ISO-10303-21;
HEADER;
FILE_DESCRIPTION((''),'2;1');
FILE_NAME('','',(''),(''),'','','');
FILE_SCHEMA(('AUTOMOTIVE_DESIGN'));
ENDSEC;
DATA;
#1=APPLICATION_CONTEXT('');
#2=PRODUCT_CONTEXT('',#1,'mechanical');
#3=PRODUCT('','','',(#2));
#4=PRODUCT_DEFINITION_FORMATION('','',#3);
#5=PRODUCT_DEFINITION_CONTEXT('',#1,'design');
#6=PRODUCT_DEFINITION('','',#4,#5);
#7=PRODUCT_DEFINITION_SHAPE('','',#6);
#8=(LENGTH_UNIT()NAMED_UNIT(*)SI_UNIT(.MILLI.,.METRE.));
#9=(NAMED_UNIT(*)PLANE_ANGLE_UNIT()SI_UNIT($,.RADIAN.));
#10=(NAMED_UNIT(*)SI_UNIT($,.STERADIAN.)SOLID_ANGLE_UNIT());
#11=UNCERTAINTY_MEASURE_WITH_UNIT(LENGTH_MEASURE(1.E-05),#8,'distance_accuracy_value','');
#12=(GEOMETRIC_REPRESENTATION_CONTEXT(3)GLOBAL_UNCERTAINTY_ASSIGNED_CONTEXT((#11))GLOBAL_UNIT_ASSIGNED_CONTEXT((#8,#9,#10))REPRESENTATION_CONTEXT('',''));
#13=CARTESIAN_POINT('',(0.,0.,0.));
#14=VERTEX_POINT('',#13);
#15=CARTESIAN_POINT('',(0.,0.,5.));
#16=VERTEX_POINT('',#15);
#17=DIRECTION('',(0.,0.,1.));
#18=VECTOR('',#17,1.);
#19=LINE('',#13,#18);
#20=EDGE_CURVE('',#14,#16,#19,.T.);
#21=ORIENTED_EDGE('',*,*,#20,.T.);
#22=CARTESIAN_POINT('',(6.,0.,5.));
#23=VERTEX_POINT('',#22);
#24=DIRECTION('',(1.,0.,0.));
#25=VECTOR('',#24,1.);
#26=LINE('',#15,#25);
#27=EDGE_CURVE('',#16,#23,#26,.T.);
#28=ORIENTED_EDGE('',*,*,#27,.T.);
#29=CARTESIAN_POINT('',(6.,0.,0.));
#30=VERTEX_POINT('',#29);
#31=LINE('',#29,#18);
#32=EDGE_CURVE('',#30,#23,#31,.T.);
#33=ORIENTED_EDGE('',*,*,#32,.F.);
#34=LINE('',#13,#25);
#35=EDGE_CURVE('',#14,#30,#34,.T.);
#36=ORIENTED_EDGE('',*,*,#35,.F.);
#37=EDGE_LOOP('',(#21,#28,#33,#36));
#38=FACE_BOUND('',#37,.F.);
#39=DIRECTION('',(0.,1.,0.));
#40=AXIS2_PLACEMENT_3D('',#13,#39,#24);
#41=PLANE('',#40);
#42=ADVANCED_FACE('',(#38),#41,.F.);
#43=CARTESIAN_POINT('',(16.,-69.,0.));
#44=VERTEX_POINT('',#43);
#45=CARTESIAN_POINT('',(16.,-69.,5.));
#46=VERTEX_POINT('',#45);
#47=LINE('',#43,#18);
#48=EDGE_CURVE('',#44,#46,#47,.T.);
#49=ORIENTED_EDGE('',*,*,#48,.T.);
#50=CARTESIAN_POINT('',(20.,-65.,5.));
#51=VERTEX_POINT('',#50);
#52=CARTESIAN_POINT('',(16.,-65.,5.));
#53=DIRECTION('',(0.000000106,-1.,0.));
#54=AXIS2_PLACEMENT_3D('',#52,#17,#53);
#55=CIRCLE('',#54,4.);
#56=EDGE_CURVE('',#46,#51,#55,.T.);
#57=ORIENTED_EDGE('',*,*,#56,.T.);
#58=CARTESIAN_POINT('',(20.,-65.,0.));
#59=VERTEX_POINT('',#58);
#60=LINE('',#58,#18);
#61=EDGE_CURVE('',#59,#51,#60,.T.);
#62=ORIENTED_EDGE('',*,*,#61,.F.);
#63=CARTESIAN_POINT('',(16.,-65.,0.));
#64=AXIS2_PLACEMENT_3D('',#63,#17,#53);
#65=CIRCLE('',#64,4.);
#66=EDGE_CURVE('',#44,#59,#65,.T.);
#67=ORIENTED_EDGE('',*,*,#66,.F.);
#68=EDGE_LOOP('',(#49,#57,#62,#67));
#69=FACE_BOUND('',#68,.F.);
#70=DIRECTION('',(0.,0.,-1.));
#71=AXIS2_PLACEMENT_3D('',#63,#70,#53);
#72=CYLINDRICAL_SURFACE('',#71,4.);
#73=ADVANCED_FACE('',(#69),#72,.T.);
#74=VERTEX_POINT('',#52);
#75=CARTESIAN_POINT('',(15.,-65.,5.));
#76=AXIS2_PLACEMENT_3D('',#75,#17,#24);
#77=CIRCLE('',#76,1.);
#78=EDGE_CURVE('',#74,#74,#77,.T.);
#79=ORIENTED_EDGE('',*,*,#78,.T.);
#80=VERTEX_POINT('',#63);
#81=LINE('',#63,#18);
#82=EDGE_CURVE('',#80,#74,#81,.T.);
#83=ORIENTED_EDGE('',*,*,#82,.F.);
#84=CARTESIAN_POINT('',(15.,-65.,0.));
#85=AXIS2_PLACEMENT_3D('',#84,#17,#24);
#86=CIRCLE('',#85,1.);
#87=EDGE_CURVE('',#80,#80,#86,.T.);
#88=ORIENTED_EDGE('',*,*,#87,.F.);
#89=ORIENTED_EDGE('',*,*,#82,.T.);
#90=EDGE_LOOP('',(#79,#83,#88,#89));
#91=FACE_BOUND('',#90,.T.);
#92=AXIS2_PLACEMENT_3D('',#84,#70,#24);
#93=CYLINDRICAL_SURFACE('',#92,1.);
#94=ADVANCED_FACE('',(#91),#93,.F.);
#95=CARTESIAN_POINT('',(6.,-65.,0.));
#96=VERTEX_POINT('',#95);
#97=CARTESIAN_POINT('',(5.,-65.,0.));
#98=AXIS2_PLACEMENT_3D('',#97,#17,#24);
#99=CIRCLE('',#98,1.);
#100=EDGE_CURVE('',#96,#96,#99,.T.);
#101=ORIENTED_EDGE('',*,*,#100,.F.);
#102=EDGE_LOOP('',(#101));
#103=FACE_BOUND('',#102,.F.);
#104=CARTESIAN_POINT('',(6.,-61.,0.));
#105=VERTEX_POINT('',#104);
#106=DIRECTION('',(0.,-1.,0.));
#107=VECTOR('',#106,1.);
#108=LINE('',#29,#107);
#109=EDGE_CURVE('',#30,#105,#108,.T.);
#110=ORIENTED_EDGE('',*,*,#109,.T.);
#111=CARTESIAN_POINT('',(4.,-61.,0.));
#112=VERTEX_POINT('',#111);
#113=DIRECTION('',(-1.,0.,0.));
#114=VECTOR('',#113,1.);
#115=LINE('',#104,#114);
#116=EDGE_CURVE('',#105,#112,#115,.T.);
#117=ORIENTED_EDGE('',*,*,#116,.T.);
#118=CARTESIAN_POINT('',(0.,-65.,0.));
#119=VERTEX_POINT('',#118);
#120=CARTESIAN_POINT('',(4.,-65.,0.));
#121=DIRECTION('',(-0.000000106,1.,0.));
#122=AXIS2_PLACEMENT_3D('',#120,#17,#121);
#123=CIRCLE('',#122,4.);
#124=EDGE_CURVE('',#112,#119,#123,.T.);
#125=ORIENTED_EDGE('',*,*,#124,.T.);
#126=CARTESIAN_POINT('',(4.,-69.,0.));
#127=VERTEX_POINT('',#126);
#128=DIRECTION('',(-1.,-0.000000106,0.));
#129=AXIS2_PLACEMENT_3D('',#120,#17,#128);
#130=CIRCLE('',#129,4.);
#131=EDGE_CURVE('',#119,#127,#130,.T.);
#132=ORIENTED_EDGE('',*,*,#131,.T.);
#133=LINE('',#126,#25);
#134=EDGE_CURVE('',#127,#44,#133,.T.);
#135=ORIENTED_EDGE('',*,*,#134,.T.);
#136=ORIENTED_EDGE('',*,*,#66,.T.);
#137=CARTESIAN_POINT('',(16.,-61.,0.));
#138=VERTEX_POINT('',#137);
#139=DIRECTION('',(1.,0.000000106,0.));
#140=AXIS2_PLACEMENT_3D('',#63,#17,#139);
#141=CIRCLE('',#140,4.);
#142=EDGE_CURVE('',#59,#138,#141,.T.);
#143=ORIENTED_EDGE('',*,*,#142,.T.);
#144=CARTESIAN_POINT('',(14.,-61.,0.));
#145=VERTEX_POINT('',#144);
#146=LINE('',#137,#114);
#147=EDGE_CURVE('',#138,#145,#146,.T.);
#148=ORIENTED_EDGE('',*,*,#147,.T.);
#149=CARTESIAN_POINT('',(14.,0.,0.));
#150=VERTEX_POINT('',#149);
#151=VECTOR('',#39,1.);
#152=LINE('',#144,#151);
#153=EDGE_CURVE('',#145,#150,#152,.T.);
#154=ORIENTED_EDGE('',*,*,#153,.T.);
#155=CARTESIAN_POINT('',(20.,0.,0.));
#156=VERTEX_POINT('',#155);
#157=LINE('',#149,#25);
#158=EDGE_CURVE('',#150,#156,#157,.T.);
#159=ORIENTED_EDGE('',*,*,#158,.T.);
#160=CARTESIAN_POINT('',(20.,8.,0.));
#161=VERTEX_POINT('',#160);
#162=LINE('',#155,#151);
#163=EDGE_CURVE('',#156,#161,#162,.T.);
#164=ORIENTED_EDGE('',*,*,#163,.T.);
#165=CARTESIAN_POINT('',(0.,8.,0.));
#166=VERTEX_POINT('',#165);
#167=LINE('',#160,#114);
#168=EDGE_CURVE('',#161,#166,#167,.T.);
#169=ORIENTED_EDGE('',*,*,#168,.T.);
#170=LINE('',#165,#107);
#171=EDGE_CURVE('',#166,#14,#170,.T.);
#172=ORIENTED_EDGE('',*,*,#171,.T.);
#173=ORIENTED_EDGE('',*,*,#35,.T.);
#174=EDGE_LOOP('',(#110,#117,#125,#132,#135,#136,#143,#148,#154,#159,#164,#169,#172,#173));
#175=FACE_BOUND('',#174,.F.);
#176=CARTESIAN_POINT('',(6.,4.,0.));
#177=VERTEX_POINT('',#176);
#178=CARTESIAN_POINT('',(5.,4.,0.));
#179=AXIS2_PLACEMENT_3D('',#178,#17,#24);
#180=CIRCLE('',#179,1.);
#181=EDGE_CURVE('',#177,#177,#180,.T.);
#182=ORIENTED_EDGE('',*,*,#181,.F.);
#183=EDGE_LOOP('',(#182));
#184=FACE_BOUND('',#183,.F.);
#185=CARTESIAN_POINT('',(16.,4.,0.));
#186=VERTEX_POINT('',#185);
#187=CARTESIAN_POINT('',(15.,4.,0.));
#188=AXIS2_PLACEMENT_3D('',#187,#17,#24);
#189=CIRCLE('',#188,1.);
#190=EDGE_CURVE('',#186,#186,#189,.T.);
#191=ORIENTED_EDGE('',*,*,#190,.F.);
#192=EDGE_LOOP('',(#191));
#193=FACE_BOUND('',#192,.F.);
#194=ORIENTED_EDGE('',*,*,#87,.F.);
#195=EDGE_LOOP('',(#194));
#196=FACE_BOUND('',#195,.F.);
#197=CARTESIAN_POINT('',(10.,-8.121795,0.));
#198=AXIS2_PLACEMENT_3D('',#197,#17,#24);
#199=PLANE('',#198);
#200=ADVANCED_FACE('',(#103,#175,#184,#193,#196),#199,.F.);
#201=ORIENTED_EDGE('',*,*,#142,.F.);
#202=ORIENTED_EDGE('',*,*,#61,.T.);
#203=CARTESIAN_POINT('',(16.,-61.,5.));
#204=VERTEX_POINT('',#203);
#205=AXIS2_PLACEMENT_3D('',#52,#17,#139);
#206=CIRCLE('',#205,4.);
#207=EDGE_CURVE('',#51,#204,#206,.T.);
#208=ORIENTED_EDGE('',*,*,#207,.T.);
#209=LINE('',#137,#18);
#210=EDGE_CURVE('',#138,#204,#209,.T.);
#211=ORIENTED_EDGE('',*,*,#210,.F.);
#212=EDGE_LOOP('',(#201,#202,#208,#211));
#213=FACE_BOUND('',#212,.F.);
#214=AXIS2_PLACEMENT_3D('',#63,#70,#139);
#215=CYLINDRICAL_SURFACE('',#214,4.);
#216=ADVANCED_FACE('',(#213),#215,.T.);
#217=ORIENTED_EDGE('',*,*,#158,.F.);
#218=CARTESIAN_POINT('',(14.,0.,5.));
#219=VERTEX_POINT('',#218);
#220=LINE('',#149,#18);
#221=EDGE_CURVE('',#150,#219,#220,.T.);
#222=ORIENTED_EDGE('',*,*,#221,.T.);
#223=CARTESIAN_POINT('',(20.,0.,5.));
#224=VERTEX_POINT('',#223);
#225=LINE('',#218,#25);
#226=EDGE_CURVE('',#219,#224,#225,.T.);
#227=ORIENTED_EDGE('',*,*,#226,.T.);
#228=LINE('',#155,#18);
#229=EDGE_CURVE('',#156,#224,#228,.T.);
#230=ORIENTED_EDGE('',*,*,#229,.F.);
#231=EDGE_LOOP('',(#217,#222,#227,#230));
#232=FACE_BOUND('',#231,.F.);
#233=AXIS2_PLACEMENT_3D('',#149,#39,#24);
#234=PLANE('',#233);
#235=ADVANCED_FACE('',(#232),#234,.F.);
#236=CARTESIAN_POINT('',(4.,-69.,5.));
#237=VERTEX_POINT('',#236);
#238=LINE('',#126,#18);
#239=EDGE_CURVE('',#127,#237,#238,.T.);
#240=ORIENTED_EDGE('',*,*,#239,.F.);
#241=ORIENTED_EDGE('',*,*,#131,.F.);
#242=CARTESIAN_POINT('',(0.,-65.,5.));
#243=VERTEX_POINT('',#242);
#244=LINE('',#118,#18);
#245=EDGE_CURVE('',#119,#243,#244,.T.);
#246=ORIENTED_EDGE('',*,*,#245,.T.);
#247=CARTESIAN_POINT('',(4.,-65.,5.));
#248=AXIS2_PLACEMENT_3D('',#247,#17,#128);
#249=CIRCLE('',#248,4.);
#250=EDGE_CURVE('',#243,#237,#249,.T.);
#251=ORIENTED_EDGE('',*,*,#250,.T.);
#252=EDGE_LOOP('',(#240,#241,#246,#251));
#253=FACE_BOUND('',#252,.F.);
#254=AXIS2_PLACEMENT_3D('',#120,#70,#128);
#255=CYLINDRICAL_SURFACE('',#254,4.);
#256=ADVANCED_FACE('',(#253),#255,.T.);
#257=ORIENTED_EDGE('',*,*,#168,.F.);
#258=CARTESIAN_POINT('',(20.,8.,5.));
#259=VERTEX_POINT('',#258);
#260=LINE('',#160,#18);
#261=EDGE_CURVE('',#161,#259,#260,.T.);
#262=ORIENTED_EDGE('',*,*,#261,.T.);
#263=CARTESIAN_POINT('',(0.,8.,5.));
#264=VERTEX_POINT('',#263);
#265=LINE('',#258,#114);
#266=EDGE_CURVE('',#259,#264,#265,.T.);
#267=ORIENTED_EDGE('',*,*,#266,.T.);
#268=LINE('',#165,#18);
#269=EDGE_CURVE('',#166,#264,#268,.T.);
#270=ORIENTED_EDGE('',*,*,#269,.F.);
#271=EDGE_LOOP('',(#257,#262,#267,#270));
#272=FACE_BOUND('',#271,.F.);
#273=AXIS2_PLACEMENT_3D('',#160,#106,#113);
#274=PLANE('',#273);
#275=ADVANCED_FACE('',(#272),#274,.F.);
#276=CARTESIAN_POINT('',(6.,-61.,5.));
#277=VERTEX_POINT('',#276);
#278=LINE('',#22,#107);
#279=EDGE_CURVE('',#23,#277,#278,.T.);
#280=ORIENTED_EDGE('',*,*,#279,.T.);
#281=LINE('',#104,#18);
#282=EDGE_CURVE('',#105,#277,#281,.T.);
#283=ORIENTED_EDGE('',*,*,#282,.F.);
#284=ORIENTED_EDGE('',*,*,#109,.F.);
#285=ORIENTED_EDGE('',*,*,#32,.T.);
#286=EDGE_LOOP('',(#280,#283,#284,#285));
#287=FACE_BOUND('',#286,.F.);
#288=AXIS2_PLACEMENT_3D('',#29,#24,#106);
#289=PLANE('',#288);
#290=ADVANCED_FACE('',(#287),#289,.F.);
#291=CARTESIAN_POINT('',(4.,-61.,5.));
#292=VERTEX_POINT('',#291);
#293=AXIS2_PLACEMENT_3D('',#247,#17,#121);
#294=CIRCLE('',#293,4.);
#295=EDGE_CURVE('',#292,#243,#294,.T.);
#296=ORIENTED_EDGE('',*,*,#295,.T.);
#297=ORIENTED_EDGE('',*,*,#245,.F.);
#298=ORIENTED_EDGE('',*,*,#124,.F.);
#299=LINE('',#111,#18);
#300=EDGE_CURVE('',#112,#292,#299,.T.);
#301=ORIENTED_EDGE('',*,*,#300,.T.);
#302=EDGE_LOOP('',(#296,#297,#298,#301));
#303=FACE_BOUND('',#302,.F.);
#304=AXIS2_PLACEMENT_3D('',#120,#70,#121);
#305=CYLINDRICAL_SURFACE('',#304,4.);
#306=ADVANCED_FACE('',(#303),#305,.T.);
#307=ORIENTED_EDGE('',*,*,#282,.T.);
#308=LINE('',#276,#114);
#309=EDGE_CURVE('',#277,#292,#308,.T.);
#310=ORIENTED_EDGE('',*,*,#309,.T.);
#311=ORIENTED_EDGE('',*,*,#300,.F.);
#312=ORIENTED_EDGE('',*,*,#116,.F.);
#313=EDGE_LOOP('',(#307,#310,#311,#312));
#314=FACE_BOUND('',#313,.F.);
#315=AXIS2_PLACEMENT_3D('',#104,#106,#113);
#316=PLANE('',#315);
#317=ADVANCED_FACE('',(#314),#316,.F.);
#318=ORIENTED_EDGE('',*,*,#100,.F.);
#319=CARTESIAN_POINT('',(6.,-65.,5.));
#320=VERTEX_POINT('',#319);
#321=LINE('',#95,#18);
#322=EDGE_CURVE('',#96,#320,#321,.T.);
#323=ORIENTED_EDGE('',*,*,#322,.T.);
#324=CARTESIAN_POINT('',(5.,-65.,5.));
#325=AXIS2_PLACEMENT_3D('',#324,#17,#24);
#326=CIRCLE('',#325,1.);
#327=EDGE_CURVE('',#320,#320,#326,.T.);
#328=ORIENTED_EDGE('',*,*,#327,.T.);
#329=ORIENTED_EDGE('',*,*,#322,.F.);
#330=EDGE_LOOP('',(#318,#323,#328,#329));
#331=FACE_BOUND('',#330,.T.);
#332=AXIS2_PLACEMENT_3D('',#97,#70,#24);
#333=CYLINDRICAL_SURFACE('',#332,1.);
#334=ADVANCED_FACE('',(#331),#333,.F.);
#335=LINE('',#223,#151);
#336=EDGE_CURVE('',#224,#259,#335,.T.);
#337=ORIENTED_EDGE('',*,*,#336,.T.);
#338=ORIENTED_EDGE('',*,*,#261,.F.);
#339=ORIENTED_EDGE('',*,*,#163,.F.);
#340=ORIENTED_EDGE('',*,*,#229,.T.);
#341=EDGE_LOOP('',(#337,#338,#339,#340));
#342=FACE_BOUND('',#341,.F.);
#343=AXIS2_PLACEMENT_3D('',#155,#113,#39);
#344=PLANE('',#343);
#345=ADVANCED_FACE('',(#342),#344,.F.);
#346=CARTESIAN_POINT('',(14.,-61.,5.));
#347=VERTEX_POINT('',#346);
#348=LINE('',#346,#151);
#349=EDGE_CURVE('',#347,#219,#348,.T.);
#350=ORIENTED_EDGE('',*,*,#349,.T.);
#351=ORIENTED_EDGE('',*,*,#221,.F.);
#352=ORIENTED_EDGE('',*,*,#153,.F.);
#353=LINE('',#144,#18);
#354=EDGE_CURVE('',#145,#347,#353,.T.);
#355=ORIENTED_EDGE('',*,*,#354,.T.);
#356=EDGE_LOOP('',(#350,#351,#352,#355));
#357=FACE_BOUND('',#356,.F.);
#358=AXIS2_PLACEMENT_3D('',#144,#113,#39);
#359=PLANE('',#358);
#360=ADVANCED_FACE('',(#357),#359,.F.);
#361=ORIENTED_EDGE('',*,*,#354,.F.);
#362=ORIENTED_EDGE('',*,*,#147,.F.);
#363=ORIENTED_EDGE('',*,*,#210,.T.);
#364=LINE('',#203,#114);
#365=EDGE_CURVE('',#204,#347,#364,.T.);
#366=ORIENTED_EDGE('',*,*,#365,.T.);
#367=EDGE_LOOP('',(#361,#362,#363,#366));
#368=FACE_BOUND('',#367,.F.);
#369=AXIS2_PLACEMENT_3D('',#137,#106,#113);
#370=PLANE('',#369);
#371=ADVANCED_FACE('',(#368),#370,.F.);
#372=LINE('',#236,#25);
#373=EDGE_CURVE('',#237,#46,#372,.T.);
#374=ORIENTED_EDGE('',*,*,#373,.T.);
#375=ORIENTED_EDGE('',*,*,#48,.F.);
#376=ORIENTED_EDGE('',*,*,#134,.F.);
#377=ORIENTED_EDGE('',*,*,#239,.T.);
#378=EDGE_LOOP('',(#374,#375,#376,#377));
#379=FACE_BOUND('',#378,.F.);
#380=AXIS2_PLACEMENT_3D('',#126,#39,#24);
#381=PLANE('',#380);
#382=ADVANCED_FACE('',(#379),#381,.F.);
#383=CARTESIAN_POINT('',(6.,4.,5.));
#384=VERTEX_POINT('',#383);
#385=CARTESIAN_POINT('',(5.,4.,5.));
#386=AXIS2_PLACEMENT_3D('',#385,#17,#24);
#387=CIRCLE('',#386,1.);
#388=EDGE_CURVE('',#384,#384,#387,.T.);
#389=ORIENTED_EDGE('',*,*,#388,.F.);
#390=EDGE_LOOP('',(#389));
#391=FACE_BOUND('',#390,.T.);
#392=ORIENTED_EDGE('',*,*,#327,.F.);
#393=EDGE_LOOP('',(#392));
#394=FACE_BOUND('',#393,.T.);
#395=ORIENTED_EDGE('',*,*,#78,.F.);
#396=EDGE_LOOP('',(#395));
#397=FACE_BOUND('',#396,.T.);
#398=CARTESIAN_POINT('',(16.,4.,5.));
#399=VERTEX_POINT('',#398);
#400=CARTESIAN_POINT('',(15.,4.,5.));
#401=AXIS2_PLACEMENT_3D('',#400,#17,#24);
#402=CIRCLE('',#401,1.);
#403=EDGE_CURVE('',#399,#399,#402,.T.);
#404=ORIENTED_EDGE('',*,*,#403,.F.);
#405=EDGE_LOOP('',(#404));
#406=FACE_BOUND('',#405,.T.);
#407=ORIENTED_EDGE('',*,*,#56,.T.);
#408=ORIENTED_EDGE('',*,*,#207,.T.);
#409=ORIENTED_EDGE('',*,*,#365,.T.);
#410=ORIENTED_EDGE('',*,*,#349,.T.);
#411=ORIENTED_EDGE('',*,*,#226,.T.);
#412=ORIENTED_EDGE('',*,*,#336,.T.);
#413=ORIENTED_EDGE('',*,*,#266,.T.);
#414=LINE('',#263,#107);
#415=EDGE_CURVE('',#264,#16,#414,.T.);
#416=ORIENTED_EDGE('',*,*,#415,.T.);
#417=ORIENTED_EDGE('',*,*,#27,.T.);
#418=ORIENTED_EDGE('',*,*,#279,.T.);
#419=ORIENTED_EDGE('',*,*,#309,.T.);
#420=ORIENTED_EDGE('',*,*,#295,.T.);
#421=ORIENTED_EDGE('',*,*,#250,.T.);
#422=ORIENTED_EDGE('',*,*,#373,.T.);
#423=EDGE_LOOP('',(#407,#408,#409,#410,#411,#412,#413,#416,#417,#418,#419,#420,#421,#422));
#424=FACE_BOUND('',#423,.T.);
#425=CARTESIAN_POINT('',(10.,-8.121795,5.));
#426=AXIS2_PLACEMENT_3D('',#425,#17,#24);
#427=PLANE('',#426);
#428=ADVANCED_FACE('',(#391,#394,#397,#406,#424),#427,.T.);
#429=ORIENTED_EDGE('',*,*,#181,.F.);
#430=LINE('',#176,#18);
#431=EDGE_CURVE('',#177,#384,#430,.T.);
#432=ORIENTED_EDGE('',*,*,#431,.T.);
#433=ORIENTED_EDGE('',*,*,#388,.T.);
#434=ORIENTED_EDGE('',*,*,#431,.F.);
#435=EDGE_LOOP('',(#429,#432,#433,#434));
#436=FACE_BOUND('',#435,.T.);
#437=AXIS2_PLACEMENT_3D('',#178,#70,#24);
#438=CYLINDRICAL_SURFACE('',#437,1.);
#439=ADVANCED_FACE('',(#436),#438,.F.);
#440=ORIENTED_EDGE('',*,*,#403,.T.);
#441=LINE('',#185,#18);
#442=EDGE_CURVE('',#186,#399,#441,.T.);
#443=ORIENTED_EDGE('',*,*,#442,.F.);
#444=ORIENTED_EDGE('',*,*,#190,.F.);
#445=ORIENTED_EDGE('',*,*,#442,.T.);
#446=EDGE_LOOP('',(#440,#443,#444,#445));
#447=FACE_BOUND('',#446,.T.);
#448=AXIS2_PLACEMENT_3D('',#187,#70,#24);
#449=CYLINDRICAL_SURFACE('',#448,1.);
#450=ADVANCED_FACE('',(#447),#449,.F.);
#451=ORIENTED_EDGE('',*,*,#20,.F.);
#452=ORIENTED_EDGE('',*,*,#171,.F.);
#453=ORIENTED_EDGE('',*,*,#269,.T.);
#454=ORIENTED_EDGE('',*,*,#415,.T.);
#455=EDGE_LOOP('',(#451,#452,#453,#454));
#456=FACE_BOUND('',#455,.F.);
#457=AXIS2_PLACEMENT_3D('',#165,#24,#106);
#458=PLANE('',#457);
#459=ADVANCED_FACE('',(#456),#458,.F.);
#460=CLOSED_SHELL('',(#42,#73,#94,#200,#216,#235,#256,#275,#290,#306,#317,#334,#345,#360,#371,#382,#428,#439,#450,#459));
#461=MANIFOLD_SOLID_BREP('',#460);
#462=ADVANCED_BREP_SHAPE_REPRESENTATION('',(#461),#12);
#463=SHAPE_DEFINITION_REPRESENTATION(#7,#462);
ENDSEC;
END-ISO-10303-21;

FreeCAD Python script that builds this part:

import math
import FreeCAD as App
import Part
import Sketcher

V = App.Vector

doc = App.newDocument("Part")
body = doc.addObject("PartDesign::Body", "Body")

# Sketch on XY plane
sketch1 = body.newObject("Sketcher::SketchObject", "Sketch")
sketch1.AttachmentSupport = (doc.getObject("XY_Plane"), [""])
sketch1.MapMode = "FlatFace"
sketch1.addGeometry(Part.LineSegment(V(0, 8, 0), V(0, 0, 0)), False)
sketch1.addGeometry(Part.LineSegment(V(0, 0, 0), V(6, 0, 0)), False)
sketch1.addGeometry(Part.LineSegment(V(6, 0, 0), V(6, -61, 0)), False)
sketch1.addGeometry(Part.LineSegment(V(6, -61, 0), V(4, -61, 0)), False)
sketch1.addGeometry(Part.ArcOfCircle(Part.Circle(V(4, -65, 0), V(0, 0, 1), 4), math.radians(90.000006), math.radians(179.999994)), False)
sketch1.addGeometry(Part.ArcOfCircle(Part.Circle(V(4, -65, 0), V(0, 0, 1), 4), math.radians(-179.999994), math.radians(-90.000006)), False)
sketch1.addGeometry(Part.LineSegment(V(4, -69, 0), V(16, -69, 0)), False)
sketch1.addGeometry(Part.ArcOfCircle(Part.Circle(V(16, -65, 0), V(0, 0, 1), 4), math.radians(-89.999994), math.radians(-0.000006)), False)
sketch1.addGeometry(Part.ArcOfCircle(Part.Circle(V(16, -65, 0), V(0, 0, 1), 4), math.radians(0.000006), math.radians(89.999994)), False)
sketch1.addGeometry(Part.LineSegment(V(16, -61, 0), V(14, -61, 0)), False)
sketch1.addGeometry(Part.LineSegment(V(14, -61, 0), V(14, 0, 0)), False)
sketch1.addGeometry(Part.LineSegment(V(14, 0, 0), V(20, 0, 0)), False)
sketch1.addGeometry(Part.LineSegment(V(20, 0, 0), V(20, 8, 0)), False)
sketch1.addGeometry(Part.LineSegment(V(20, 8, 0), V(0, 8, 0)), False)
sketch1.addGeometry(Part.Circle(V(5, -65, 0), V(0, 0, 1), 1), False)
sketch1.addGeometry(Part.Circle(V(15, -65, 0), V(0, 0, 1), 1), False)
sketch1.addGeometry(Part.Circle(V(5, 4, 0), V(0, 0, 1), 1), False)
sketch1.addGeometry(Part.Circle(V(15, 4, 0), V(0, 0, 1), 1), False)
sketch1.addConstraint(Sketcher.Constraint("Coincident", 0, 2, 1, 1))
sketch1.addConstraint(Sketcher.Constraint("Coincident", 1, 2, 2, 1))
sketch1.addConstraint(Sketcher.Constraint("Coincident", 2, 2, 3, 1))
sketch1.addConstraint(Sketcher.Constraint("Tangent", 3, 2, 4, 1))
sketch1.addConstraint(Sketcher.Constraint("Tangent", 4, 2, 5, 1))
sketch1.addConstraint(Sketcher.Constraint("Tangent", 5, 2, 6, 1))
sketch1.addConstraint(Sketcher.Constraint("Tangent", 6, 2, 7, 1))
sketch1.addConstraint(Sketcher.Constraint("Tangent", 7, 2, 8, 1))
sketch1.addConstraint(Sketcher.Constraint("Tangent", 8, 2, 9, 1))
sketch1.addConstraint(Sketcher.Constraint("Coincident", 9, 2, 10, 1))
sketch1.addConstraint(Sketcher.Constraint("Coincident", 10, 2, 11, 1))
sketch1.addConstraint(Sketcher.Constraint("Coincident", 11, 2, 12, 1))
sketch1.addConstraint(Sketcher.Constraint("Coincident", 12, 2, 13, 1))
sketch1.addConstraint(Sketcher.Constraint("Coincident", 13, 2, 0, 1))
sketch1.addConstraint(Sketcher.Constraint("Vertical", 0))
sketch1.addConstraint(Sketcher.Constraint("Horizontal", 1))
sketch1.addConstraint(Sketcher.Constraint("Vertical", 2))
sketch1.addConstraint(Sketcher.Constraint("Horizontal", 3))
sketch1.addConstraint(Sketcher.Constraint("Horizontal", 6))
sketch1.addConstraint(Sketcher.Constraint("Horizontal", 9))
sketch1.addConstraint(Sketcher.Constraint("Vertical", 10))
sketch1.addConstraint(Sketcher.Constraint("Horizontal", 11))
sketch1.addConstraint(Sketcher.Constraint("Vertical", 12))
sketch1.addConstraint(Sketcher.Constraint("Horizontal", 13))
sketch1.addConstraint(Sketcher.Constraint("Coincident", 0, 2, -1, 1))
sketch1.addConstraint(Sketcher.Constraint("Equal", 4, 5))
sketch1.addConstraint(Sketcher.Constraint("Equal", 5, 7))
sketch1.addConstraint(Sketcher.Constraint("Equal", 7, 8))
sketch1.addConstraint(Sketcher.Constraint("Equal", 14, 15))
sketch1.addConstraint(Sketcher.Constraint("Equal", 15, 16))
sketch1.addConstraint(Sketcher.Constraint("Equal", 16, 17))
sketch1.addConstraint(Sketcher.Constraint("PointOnObject", 4, 2, -2))
sketch1.addConstraint(Sketcher.Constraint("PointOnObject", 10, 2, -1))
sketch1.addConstraint(Sketcher.Constraint("Horizontal", 8, 3, 14, 3))
sketch1.addConstraint(Sketcher.Constraint("Horizontal", 14, 3, 15, 3))
sketch1.addConstraint(Sketcher.Constraint("Horizontal", 16, 3, 17, 3))
sketch1.addConstraint(Sketcher.Constraint("Horizontal", 15, 3, 4, 2))
sketch1.addConstraint(Sketcher.Constraint("Horizontal", 4, 2, 7, 2))
sketch1.addConstraint(Sketcher.Constraint("Vertical", 14, 3, 16, 3))
sketch1.addConstraint(Sketcher.Constraint("Vertical", 15, 3, 17, 3))
sketch1.addConstraint(Sketcher.Constraint("Vertical", 7, 2, 11, 2))
sketch1.addConstraint(Sketcher.Constraint("Equal", 3, 9))
sketch1.addConstraint(Sketcher.Constraint("Diameter", 14, 2.0))
sketch1.addConstraint(Sketcher.Constraint("Radius", 4, 4.0))
sketch1.addConstraint(Sketcher.Constraint("DistanceX", 1, 1, 1, 2, 6.0))
sketch1.addConstraint(Sketcher.Constraint("DistanceX", 6, 1, 6, 2, 12.0))
sketch1.addConstraint(Sketcher.Constraint("DistanceY", 0, 2, 0, 1, 8.0))
sketch1.addConstraint(Sketcher.Constraint("DistanceY", 2, 2, 2, 1, 61.0))
sketch1.addConstraint(Sketcher.Constraint("DistanceX", -1, 1, 14, 3, 5.0))
sketch1.addConstraint(Sketcher.Constraint("DistanceX", -1, 1, 15, 3, 15.0))
sketch1.addConstraint(Sketcher.Constraint("DistanceY", -1, 1, 16, 3, 4.0))
pad1 = body.newObject("PartDesign::Pad", "Pad")
pad1.Profile = sketch1
pad1.Length = 5

doc.recompute()
